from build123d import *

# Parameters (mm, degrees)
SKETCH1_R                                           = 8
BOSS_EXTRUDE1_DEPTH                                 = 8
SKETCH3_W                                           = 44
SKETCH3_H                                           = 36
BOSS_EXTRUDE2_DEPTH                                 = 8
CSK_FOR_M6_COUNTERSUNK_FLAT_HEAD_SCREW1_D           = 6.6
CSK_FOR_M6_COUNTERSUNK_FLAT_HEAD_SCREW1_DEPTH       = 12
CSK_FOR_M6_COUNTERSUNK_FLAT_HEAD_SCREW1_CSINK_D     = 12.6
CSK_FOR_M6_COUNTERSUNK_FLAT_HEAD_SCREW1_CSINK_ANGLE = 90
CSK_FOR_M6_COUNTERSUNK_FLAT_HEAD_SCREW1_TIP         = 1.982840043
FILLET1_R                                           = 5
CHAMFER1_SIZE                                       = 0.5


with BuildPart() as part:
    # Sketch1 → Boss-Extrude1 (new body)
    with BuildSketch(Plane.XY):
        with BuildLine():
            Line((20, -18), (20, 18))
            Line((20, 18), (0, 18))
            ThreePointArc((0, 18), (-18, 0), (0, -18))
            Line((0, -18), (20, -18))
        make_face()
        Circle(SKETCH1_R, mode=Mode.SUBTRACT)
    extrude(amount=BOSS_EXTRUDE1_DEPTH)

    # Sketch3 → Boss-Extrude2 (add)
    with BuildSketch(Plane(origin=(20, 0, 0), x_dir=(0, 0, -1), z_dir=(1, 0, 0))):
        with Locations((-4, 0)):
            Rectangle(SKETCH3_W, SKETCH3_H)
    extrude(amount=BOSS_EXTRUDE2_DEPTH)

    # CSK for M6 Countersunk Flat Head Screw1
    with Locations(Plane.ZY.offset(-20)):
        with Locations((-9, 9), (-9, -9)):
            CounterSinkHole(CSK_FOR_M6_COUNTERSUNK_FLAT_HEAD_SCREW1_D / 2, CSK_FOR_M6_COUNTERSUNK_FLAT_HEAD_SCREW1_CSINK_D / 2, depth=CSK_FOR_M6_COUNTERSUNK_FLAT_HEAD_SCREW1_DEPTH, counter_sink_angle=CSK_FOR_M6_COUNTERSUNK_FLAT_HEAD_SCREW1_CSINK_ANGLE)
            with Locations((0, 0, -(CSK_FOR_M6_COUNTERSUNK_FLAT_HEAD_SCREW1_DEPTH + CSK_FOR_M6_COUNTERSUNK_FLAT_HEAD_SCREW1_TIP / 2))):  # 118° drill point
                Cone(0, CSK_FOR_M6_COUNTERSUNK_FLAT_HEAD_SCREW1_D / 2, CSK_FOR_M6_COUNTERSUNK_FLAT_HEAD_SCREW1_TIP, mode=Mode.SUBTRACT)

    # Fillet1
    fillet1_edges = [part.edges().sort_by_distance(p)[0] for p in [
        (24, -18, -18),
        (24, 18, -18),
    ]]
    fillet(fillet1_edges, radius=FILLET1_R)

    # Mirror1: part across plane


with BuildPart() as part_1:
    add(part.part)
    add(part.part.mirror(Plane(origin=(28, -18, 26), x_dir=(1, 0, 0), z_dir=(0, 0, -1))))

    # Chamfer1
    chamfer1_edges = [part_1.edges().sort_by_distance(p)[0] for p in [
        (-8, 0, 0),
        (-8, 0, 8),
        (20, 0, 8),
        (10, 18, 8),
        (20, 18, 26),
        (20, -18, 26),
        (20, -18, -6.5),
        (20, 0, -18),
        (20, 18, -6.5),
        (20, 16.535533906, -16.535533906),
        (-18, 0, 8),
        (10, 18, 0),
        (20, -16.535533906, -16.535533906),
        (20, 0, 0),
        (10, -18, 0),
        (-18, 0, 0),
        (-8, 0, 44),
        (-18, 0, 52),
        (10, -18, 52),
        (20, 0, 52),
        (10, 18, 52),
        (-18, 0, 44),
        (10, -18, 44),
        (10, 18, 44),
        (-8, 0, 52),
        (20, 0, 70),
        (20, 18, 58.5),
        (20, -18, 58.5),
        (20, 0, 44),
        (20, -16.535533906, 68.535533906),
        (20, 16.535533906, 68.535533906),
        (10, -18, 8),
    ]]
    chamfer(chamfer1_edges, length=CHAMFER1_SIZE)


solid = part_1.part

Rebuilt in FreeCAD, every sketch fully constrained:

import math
import FreeCAD as App
import Part
import Sketcher
from FreeCAD import Vector
Q = App.Units.Quantity


def edges_at(feature, points):
    """Names of the edges that pass closest to the given points."""
    edges = feature.Shape.Edges
    near = lambda p: min(range(len(edges)), key=lambda i: edges[i].distToShape(Part.Vertex(*p))[0])
    return sorted({f"Edge{near(p) + 1}" for p in points})

doc = App.newDocument("Part")
body = doc.addObject("PartDesign::Body", "Body")

sketch1 = body.newObject("Sketcher::SketchObject", "Sketch")
sketch1.AttachmentSupport = (doc.getObject("XY_Plane"), [""])
sketch1.MapMode = "FlatFace"
sketch1.addGeometry(Part.LineSegment(Vector(20, -18, 0), Vector(20, 18, 0)), False)
sketch1.addGeometry(Part.LineSegment(Vector(20, 18, 0), Vector(0, 18, 0)), False)
sketch1.addGeometry(Part.ArcOfCircle(Part.Circle(Vector(0, 0, 0), Vector(0, 0, 1), 18), math.radians(90), math.radians(270)), False)
sketch1.addGeometry(Part.LineSegment(Vector(0, -18, 0), Vector(20, -18, 0)), False)
sketch1.addGeometry(Part.Circle(Vector(0, 0, 0), Vector(0, 0, 1), 8), False)
sketch1.addConstraint(Sketcher.Constraint("Coincident", 0, 2, 1, 1))
sketch1.addConstraint(Sketcher.Constraint("Tangent", 1, 2, 2, 1))
sketch1.addConstraint(Sketcher.Constraint("Tangent", 2, 2, 3, 1))
sketch1.addConstraint(Sketcher.Constraint("Coincident", 3, 2, 0, 1))
sketch1.addConstraint(Sketcher.Constraint("Vertical", 0))
sketch1.addConstraint(Sketcher.Constraint("Horizontal", 1))
sketch1.addConstraint(Sketcher.Constraint("Horizontal", 3))
sketch1.addConstraint(Sketcher.Constraint("Coincident", 2, 3, -1, 1))
sketch1.addConstraint(Sketcher.Constraint("Coincident", 4, 3, -1, 1))
sketch1.addConstraint(Sketcher.Constraint("Diameter", 4, Q("16 mm")))
sketch1.addConstraint(Sketcher.Constraint("Radius", 2, Q("18 mm")))
sketch1.addConstraint(Sketcher.Constraint("DistanceX", 1, 2, 1, 1, Q("20 mm")))
pad1 = body.newObject("PartDesign::Pad", "Pad")
pad1.Profile = sketch1
pad1.Length = 8

sketch2 = body.newObject("Sketcher::SketchObject", "Sketch001")
sketch2.AttachmentSupport = (doc.getObject("YZ_Plane"), [""])
sketch2.MapMode = "FlatFace"
sketch2.AttachmentOffset = App.Placement(Vector(0, 0, 20), App.Rotation())
sketch2.addGeometry(Part.LineSegment(Vector(18, 26, 0), Vector(-18, 26, 0)), False)
sketch2.addGeometry(Part.LineSegment(Vector(-18, 26, 0), Vector(-18, -18, 0)), False)
sketch2.addGeometry(Part.LineSegment(Vector(-18, -18, 0), Vector(18, -18, 0)), False)
sketch2.addGeometry(Part.LineSegment(Vector(18, -18, 0), Vector(18, 26, 0)), False)
sketch2.addConstraint(Sketcher.Constraint("Coincident", 0, 2, 1, 1))
sketch2.addConstraint(Sketcher.Constraint("Coincident", 1, 2, 2, 1))
sketch2.addConstraint(Sketcher.Constraint("Coincident", 2, 2, 3, 1))
sketch2.addConstraint(Sketcher.Constraint("Coincident", 3, 2, 0, 1))
sketch2.addConstraint(Sketcher.Constraint("Horizontal", 0))
sketch2.addConstraint(Sketcher.Constraint("Vertical", 1))
sketch2.addConstraint(Sketcher.Constraint("Horizontal", 2))
sketch2.addConstraint(Sketcher.Constraint("Vertical", 3))
sketch2.addConstraint(Sketcher.Constraint("DistanceX", 0, 2, 0, 1, Q("36 mm")))
sketch2.addConstraint(Sketcher.Constraint("DistanceY", 1, 2, 1, 1, Q("44 mm")))
sketch2.addConstraint(Sketcher.Constraint("DistanceX", 0, 2, -1, 1, Q("18 mm")))
sketch2.addConstraint(Sketcher.Constraint("DistanceY", -1, 1, 0, 2, Q("26 mm")))
pad2 = body.newObject("PartDesign::Pad", "Pad001")
pad2.Profile = sketch2
pad2.Length = 8

sketch3 = body.newObject("Sketcher::SketchObject", "Sketch002")
sketch3.AttachmentSupport = (doc.getObject("YZ_Plane"), [""])
sketch3.MapMode = "FlatFace"
sketch3.AttachmentOffset = App.Placement(Vector(0, 0, 20), App.Rotation())
sketch3.addGeometry(Part.Circle(Vector(9, -9, 0), Vector(0, 0, 1), 3.3), False)
sketch3.addGeometry(Part.Circle(Vector(-9, -9, 0), Vector(0, 0, 1), 3.3), False)
sketch3.addConstraint(Sketcher.Constraint("Equal", 0, 1))
sketch3.addConstraint(Sketcher.Constraint("Symmetric", 0, 3, 1, 3, -2))
sketch3.addConstraint(Sketcher.Constraint("Diameter", 0, Q("6.6 mm")))
sketch3.addConstraint(Sketcher.Constraint("DistanceX", -1, 1, 0, 3, Q("9 mm")))
sketch3.addConstraint(Sketcher.Constraint("DistanceY", 0, 3, -1, 1, Q("9 mm")))
doc.recompute()
hole = body.newObject("PartDesign::Hole", "Hole")
hole.Profile = sketch3
hole.ThreadType = "None"
hole.Diameter = 6.6
hole.DepthType = "Dimension"
hole.Depth = 12
hole.DrillPoint = "Angled"
hole.DrillPointAngle = 118
hole.HoleCutType = "Countersink"
hole.HoleCutDiameter = 12.6
hole.HoleCutCountersinkAngle = 90
hole.Reversed = True
doc.recompute()

fillet = body.newObject("PartDesign::Fillet", "Fillet")
fillet.Base = (hole, edges_at(hole, [(24, -18, -18), (24, 18, -18)]))
fillet.Radius = 5
body2 = doc.addObject("PartDesign::Body", "Body001")
doc.recompute()

body2.BaseFeature = body
doc.recompute()

mirroring = doc.addObject("Part::Mirroring", "Mirroring")
mirroring.Source = body
mirroring.Base = Vector(28, -18, 26)
mirroring.Normal = Vector(0, 0, -1)
body3 = doc.addObject("PartDesign::Body", "Body002")
body3.BaseFeature = mirroring
boolean = body2.newObject("PartDesign::Boolean", "Boolean")
boolean.Type = "Fuse"
boolean.addObjects([body3])
doc.recompute()

chamfer = body2.newObject("PartDesign::Chamfer", "Chamfer")
chamfer.Base = (boolean, edges_at(boolean, [
    (-8, 0, 0),
    (-8, 0, 8),
    (20, 0, 8),
    (10, 18, 8),
    (20, 18, 26),
    (20, -18, 26),
    (20, -18, -6.5),
    (20, 0, -18),
    (20, 18, -6.5),
    (20, 16.536, -16.536),
    (-18, 0, 8),
    (10, 18, 0),
    (20, -16.536, -16.536),
    (20, 0, 0),
    (10, -18, 0),
    (-18, 0, 0),
    (-8, 0, 44),
    (-18, 0, 52),
    (10, -18, 52),
    (20, 0, 52),
    (10, 18, 52),
    (-18, 0, 44),
    (10, -18, 44),
    (10, 18, 44),
    (-8, 0, 52),
    (20, 0, 70),
    (20, 18, 58.5),
    (20, -18, 58.5),
    (20, 0, 44),
    (20, -16.536, 68.536),
    (20, 16.536, 68.536),
    (10, -18, 8),
]))
chamfer.Size = 0.5
mirroring.Visibility = False

doc.recompute()
